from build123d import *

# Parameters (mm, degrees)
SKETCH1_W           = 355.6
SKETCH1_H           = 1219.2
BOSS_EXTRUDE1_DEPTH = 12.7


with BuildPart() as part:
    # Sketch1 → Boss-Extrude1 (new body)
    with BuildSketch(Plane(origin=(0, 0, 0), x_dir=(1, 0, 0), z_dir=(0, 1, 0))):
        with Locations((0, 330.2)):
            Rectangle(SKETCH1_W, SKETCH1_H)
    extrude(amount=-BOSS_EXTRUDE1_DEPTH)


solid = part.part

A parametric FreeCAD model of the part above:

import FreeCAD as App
import Part
import Sketcher
Q = App.Units.Quantity


def add_polygon(sketch, points):
    """Adds a closed chain of lines whose ends are joined by coincident constraints."""
    first, n = sketch.GeometryCount, len(points)
    for a, b in zip(points, points[1:] + points[:1]):
        sketch.addGeometry(Part.LineSegment(App.Vector(*a, 0), App.Vector(*b, 0)), False)
    for i in range(n):
        sketch.addConstraint(Sketcher.Constraint("Coincident", first + i, 2, first + (i + 1) % n, 1))

doc = App.newDocument("Part")
body = doc.addObject("PartDesign::Body", "Body")

sketch1 = body.newObject("Sketcher::SketchObject", "Sketch")
sketch1.AttachmentSupport = (doc.getObject("XZ_Plane"), [""])
sketch1.MapMode = "FlatFace"
add_polygon(sketch1, [(-178, -940), (-178, 279), (178, 279), (178, -940)])
sketch1.addConstraint([
    Sketcher.Constraint("Vertical", 0),
    Sketcher.Constraint("Horizontal", 1),
    Sketcher.Constraint("Vertical", 2),
    Sketcher.Constraint("Horizontal", 3),
    Sketcher.Constraint("DistanceX", 1, 1, 1, 2, Q("14 in")),
    Sketcher.Constraint("DistanceY", 0, 1, 0, 2, Q("48 in")),
    Sketcher.Constraint("DistanceX", 0, 2, -1, 1, Q("7 in")),
    Sketcher.Constraint("DistanceY", -1, 1, 0, 2, Q("11 in")),
])
pad1 = body.newObject("PartDesign::Pad", "Pad")
pad1.Profile = sketch1
pad1.Length = Q("0.5 in")

doc.recompute()
